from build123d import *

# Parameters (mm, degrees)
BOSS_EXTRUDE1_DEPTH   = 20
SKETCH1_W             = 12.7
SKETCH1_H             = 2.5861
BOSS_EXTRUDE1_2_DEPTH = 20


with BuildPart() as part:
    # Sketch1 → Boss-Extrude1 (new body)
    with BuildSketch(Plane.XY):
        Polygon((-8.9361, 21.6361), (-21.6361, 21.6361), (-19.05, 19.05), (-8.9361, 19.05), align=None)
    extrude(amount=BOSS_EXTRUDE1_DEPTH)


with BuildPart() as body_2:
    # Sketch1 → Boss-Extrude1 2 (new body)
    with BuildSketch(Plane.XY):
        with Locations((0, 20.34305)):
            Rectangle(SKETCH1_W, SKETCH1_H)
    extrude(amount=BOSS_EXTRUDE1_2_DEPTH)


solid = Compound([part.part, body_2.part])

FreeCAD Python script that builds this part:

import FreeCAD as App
import Part
import Sketcher
from FreeCAD import Vector
Q = App.Units.Quantity

doc = App.newDocument("Part")
params = doc.addObject("Spreadsheet::Sheet", "Params")
for row, (alias, value) in enumerate([
    ("sketch1_width", "12.7 mm"),
    ("pad1_length", "20 mm"),
    ("sketch2_width", "12.7 mm"),
    ("pad2_length", "20 mm"),
], start=1):
    params.set(f"A{row}", alias)
    params.set(f"B{row}", "=" + value)
    params.setAlias(f"B{row}", alias)

body = doc.addObject("PartDesign::Body", "Body")

sketch1 = doc.addObject("Sketcher::SketchObject", "Sketch")
body.addObject(sketch1)
sketch1.AttachmentSupport = (doc.XY_Plane, [""])
sketch1.MapMode = "FlatFace"
sketch1.addGeometry([
    Part.LineSegment(Vector(-8.9361, 21.6361, 0), Vector(-21.6361, 21.6361, 0)),
    Part.LineSegment(Vector(-21.6361, 21.6361, 0), Vector(-19.05, 19.05, 0)),
    Part.LineSegment(Vector(-19.05, 19.05, 0), Vector(-8.9361, 19.05, 0)),
    Part.LineSegment(Vector(-8.9361, 19.05, 0), Vector(-8.9361, 21.6361, 0)),
], False)
sketch1.addConstraint([
    Sketcher.Constraint("Coincident", 0, 2, 1, 1),
    Sketcher.Constraint("Coincident", 1, 2, 2, 1),
    Sketcher.Constraint("Coincident", 2, 2, 3, 1),
    Sketcher.Constraint("Coincident", 3, 2, 0, 1),
    Sketcher.Constraint("Horizontal", 0),
    Sketcher.Constraint("Horizontal", 2),
    Sketcher.Constraint("Vertical", 3),
    Sketcher.Constraint("Angle", 1, Q("-45 deg")),
    Sketcher.Constraint("DistanceX", 0, 2, 0, 1, Q("12.7 mm")),
    Sketcher.Constraint("DistanceX", 1, 2, -1, 1, Q("19.05 mm")),
    Sketcher.Constraint("DistanceY", -1, 1, 1, 2, Q("19.05 mm")),
    Sketcher.Constraint("DistanceX", 2, 1, 2, 2, Q("10.1139 mm")),
])
sketch1.setExpression("Constraints[8]", "Params.sketch1_width")
pad1 = doc.addObject("PartDesign::Pad", "Pad")
body.addObject(pad1)
pad1.Profile = sketch1
pad1.setExpression("Length", "Params.pad1_length")
body2 = doc.addObject("PartDesign::Body", "Body001")

sketch2 = doc.addObject("Sketcher::SketchObject", "Sketch001")
body2.addObject(sketch2)
sketch2.AttachmentSupport = (doc.getObject("XY_Plane001"), [""])
sketch2.MapMode = "FlatFace"
sketch2.addGeometry([
    Part.LineSegment(Vector(-6.35, 21.6361, 0), Vector(-6.35, 19.05, 0)),
    Part.LineSegment(Vector(-6.35, 19.05, 0), Vector(6.35, 19.05, 0)),
    Part.LineSegment(Vector(6.35, 19.05, 0), Vector(6.35, 21.6361, 0)),
    Part.LineSegment(Vector(6.35, 21.6361, 0), Vector(-6.35, 21.6361, 0)),
], False)
sketch2.addConstraint([
    Sketcher.Constraint("Coincident", 0, 2, 1, 1),
    Sketcher.Constraint("Coincident", 1, 2, 2, 1),
    Sketcher.Constraint("Coincident", 2, 2, 3, 1),
    Sketcher.Constraint("Coincident", 3, 2, 0, 1),
    Sketcher.Constraint("Vertical", 0),
    Sketcher.Constraint("Horizontal", 1),
    Sketcher.Constraint("Vertical", 2),
    Sketcher.Constraint("Horizontal", 3),
    Sketcher.Constraint("DistanceX", 1, 1, 1, 2, Q("12.7 mm")),
    Sketcher.Constraint("DistanceX", 0, 2, -1, 1, Q("6.35 mm")),
    Sketcher.Constraint("DistanceY", -1, 1, 0, 2, Q("19.05 mm")),
    Sketcher.Constraint("DistanceY", 0, 2, 0, 1, Q("2.5861 mm")),
])
sketch2.setExpression("Constraints[8]", "Params.sketch2_width")
pad2 = doc.addObject("PartDesign::Pad", "Pad001")
body2.addObject(pad2)
pad2.Profile = sketch2
pad2.setExpression("Length", "Params.pad2_length")

doc.recompute()
